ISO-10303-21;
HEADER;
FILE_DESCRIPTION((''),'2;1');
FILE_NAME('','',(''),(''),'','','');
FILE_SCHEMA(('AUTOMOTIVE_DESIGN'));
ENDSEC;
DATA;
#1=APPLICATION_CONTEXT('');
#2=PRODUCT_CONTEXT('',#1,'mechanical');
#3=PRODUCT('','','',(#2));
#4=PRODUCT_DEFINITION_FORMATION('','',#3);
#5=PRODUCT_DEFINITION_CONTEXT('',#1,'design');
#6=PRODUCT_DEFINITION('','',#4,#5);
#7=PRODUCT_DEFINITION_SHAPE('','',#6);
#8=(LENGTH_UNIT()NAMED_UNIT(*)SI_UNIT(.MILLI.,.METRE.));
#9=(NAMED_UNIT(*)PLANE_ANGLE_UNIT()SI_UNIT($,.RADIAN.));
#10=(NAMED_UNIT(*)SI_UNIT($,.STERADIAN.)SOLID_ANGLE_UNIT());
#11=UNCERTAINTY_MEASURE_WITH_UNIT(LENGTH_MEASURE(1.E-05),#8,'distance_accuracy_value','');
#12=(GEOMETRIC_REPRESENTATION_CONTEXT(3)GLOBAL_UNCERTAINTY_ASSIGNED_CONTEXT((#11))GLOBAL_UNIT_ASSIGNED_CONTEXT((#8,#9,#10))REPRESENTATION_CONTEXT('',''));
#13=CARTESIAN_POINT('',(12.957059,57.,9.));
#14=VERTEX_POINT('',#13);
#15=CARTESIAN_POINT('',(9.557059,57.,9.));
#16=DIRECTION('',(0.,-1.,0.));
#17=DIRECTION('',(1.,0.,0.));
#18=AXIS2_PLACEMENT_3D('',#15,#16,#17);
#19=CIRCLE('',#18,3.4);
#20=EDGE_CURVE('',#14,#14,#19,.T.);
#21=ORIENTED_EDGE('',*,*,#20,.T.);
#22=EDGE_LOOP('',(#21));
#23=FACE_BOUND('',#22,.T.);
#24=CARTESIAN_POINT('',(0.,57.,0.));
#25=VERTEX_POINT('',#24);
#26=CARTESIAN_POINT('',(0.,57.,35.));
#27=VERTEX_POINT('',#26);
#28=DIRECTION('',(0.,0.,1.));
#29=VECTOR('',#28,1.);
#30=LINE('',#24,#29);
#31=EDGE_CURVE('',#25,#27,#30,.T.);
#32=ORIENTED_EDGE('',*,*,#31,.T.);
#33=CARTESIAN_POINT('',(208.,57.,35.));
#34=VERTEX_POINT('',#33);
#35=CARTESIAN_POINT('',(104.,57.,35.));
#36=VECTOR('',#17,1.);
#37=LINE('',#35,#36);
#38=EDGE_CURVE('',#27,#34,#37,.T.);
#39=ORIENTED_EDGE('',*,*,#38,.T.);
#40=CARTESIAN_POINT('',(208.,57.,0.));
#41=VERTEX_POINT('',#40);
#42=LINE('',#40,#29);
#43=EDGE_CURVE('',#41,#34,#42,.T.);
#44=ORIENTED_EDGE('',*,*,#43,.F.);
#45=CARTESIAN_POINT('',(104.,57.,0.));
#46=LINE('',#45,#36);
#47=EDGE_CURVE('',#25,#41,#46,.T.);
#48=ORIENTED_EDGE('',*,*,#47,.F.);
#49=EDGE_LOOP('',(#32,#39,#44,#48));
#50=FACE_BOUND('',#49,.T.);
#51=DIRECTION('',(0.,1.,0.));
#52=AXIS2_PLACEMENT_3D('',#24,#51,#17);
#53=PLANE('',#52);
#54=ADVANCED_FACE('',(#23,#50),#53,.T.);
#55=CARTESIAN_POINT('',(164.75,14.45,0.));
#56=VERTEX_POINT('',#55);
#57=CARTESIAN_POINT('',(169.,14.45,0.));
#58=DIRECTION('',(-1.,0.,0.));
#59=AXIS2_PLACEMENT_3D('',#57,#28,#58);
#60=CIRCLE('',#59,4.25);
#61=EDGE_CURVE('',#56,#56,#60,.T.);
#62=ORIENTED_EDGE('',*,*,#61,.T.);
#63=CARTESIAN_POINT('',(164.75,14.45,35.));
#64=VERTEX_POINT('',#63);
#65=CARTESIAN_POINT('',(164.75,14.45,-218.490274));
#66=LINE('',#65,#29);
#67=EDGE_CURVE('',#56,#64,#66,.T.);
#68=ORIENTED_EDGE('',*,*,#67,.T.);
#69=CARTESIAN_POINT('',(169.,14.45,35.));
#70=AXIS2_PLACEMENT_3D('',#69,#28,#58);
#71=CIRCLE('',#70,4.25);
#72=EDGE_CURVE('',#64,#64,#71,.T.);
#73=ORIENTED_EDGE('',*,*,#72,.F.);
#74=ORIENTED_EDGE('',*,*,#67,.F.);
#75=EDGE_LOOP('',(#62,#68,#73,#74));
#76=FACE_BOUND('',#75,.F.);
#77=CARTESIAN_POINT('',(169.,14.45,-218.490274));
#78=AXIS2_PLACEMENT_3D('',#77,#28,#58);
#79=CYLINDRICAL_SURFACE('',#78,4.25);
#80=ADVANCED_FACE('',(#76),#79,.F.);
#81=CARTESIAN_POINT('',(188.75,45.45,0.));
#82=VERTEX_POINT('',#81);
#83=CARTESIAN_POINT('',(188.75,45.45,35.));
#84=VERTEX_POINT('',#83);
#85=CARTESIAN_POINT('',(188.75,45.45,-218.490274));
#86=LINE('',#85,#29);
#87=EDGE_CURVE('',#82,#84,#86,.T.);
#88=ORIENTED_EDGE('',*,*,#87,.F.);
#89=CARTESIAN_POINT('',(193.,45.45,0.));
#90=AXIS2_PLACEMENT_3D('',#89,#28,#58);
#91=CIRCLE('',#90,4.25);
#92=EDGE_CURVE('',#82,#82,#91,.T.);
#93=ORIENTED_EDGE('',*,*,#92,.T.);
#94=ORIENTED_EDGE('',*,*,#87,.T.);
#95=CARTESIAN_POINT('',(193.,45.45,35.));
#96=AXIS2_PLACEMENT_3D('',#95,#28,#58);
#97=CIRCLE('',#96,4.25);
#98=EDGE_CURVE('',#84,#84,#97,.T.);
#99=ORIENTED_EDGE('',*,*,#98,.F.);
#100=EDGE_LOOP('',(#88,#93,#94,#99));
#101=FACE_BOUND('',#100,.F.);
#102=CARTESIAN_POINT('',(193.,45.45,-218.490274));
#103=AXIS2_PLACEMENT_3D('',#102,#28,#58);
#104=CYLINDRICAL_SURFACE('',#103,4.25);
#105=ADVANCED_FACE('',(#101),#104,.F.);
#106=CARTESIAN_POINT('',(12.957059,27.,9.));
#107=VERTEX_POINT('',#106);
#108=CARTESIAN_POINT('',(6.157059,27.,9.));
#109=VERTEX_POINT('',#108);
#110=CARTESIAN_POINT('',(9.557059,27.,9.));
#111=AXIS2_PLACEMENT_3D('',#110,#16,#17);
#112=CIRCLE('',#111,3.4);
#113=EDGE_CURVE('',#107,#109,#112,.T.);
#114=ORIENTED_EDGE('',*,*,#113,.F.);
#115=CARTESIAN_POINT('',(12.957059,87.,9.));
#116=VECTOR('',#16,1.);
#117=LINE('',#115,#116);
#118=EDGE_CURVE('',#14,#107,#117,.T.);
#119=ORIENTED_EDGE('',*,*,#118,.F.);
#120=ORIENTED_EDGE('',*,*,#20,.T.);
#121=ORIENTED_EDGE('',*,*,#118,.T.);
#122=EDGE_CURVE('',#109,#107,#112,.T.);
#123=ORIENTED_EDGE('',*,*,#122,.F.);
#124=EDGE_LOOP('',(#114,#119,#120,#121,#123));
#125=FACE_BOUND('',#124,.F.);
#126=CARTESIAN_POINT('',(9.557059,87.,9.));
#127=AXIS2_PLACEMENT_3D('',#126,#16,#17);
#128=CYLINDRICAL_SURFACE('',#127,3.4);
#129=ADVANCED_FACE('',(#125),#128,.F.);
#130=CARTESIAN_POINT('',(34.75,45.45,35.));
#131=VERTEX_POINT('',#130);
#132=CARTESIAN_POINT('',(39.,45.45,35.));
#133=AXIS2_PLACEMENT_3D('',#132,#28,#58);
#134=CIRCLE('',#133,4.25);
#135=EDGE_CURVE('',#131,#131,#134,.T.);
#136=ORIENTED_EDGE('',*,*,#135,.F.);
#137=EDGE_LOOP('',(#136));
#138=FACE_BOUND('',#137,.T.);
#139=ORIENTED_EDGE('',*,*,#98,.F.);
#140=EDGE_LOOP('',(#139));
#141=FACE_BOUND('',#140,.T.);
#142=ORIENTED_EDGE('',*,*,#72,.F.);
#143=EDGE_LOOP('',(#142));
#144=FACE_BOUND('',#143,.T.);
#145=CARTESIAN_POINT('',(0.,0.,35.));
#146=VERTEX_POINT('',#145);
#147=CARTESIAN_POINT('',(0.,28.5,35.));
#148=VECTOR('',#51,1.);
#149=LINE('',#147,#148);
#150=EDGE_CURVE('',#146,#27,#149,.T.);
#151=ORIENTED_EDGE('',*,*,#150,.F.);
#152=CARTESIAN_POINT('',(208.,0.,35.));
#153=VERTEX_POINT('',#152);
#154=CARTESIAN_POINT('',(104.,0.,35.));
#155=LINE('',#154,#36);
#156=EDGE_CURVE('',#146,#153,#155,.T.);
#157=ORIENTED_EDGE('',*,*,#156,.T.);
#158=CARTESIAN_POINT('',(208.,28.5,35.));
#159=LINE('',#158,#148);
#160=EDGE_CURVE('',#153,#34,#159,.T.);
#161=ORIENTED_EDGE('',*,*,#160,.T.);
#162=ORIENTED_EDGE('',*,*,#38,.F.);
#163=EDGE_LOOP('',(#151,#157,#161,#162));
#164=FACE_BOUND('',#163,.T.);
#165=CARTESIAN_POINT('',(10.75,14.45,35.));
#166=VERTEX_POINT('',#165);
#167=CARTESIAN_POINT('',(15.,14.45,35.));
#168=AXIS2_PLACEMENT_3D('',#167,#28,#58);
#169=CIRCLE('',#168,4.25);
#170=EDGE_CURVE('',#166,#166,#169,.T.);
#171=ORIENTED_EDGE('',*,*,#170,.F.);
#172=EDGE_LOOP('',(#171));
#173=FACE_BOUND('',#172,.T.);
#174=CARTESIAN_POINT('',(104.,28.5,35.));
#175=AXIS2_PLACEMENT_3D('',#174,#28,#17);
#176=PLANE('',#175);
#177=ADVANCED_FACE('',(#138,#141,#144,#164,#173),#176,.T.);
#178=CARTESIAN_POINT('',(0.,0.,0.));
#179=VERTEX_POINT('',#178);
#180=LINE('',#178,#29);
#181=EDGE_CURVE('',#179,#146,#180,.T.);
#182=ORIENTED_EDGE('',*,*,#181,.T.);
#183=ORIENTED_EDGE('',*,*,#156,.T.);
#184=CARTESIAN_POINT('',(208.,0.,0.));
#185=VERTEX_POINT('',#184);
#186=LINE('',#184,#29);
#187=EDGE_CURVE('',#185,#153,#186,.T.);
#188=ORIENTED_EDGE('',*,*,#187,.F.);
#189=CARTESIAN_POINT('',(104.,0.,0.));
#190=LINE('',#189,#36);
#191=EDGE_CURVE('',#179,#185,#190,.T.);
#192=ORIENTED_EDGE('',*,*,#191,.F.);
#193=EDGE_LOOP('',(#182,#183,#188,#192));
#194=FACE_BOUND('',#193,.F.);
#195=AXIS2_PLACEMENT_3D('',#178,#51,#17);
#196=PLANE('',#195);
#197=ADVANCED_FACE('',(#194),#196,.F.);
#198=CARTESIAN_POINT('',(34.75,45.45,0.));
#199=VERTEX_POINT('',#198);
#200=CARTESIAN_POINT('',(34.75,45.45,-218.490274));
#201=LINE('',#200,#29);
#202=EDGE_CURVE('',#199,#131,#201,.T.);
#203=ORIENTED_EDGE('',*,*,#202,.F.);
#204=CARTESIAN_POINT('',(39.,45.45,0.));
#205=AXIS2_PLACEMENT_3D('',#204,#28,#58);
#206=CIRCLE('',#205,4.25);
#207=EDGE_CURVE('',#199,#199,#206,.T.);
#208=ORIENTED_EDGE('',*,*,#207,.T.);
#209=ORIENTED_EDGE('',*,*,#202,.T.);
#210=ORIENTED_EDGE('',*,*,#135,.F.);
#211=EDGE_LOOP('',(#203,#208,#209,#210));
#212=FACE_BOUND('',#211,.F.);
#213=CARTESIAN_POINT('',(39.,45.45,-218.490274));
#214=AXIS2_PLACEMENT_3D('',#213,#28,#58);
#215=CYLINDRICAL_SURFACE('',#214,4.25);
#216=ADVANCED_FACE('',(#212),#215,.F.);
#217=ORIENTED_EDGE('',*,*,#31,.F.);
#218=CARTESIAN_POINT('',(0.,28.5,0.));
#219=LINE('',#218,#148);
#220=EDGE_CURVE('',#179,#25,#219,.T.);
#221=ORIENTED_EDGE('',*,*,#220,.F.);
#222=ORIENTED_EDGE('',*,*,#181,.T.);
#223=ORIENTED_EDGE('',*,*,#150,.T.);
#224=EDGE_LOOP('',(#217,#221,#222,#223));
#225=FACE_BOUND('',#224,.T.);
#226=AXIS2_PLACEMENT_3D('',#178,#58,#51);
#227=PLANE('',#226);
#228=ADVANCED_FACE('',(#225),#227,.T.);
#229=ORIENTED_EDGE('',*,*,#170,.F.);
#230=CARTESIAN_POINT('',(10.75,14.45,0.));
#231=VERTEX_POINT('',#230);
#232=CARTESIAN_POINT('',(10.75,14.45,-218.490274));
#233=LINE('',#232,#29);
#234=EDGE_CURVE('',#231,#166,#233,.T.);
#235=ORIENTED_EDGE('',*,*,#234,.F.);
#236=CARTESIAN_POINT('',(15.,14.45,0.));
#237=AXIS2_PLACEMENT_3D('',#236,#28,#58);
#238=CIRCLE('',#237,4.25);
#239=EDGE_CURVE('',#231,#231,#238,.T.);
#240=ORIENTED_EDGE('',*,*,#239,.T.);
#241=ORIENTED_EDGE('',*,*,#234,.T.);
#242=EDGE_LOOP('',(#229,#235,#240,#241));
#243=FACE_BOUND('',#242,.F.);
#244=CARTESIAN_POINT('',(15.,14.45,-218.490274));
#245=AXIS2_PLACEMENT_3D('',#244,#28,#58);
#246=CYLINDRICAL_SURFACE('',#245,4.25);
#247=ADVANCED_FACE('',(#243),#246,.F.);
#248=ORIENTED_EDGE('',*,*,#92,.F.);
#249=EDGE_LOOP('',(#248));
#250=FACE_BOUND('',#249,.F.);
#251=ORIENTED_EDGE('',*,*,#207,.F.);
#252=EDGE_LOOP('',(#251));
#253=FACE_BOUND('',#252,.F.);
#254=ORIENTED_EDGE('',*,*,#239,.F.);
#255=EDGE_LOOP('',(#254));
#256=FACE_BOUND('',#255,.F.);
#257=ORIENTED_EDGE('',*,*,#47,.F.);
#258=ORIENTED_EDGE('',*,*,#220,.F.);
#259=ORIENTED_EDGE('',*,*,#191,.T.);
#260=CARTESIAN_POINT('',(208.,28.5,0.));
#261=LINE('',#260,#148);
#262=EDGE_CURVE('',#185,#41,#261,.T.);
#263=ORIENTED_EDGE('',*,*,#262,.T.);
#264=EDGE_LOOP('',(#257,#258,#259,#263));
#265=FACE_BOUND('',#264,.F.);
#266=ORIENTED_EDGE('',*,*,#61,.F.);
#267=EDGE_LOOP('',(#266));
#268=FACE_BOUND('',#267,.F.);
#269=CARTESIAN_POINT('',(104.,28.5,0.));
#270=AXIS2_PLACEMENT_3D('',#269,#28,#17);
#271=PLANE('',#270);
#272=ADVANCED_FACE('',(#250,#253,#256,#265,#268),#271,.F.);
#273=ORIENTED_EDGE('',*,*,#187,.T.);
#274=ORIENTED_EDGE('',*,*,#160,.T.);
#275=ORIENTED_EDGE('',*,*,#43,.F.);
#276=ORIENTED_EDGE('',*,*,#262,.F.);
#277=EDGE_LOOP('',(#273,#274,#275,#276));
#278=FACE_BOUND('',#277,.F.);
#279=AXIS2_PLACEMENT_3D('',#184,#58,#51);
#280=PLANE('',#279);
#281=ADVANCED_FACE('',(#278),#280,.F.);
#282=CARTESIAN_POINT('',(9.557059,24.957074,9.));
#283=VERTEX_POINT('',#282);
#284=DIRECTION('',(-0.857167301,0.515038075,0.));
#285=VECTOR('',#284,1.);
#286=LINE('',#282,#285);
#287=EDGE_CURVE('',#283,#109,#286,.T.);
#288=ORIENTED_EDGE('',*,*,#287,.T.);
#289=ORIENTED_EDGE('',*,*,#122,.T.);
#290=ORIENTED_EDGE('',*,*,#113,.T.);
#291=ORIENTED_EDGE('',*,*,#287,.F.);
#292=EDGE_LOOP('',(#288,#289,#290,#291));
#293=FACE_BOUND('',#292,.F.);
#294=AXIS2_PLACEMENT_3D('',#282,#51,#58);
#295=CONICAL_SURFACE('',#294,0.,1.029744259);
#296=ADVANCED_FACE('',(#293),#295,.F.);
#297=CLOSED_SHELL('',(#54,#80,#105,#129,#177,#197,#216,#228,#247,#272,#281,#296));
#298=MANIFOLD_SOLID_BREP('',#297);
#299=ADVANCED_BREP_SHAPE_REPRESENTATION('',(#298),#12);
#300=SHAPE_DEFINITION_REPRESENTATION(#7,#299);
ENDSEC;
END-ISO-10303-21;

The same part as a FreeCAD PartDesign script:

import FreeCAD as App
import Part
import Sketcher

V = App.Vector

doc = App.newDocument("Part")
body = doc.addObject("PartDesign::Body", "Body")

sketch1 = doc.addObject("Sketcher::SketchObject", "Sketch")
body.addObject(sketch1)
sketch1.AttachmentSupport = (doc.XY_Plane, [""])
sketch1.MapMode = "FlatFace"
sketch1.addGeometry([
    Part.LineSegment(V(0, 57, 0), V(0, 0, 0)),
    Part.LineSegment(V(0, 0, 0), V(208, 0, 0)),
    Part.LineSegment(V(208, 0, 0), V(208, 57, 0)),
    Part.LineSegment(V(208, 57, 0), V(0, 57, 0)),
], False)
sketch1.addConstraint([
    Sketcher.Constraint("Coincident", 0, 2, 1, 1),
    Sketcher.Constraint("Coincident", 1, 2, 2, 1),
    Sketcher.Constraint("Coincident", 2, 2, 3, 1),
    Sketcher.Constraint("Coincident", 3, 2, 0, 1),
    Sketcher.Constraint("Vertical", 0),
    Sketcher.Constraint("Horizontal", 1),
    Sketcher.Constraint("Vertical", 2),
    Sketcher.Constraint("Horizontal", 3),
    Sketcher.Constraint("Coincident", 0, 2, -1, 1),
    Sketcher.Constraint("DistanceX", 1, 1, 1, 2, 208.0),
    Sketcher.Constraint("DistanceY", 0, 2, 0, 1, 57.0),
])
pad1 = doc.addObject("PartDesign::Pad", "Pad")
body.addObject(pad1)
pad1.Profile = sketch1
pad1.Length = 35

sketch2 = doc.addObject("Sketcher::SketchObject", "Sketch001")
body.addObject(sketch2)
sketch2.AttachmentSupport = (doc.XZ_Plane, [""])
sketch2.MapMode = "FlatFace"
sketch2.AttachmentOffset = App.Placement(V(0, 0, -57), App.Rotation())
sketch2.addGeometry(Part.Circle(V(9.6, 9, 0), V(0, 0, 1), 3.4), False)
sketch2.addConstraint([
    Sketcher.Constraint("Diameter", 0, 6.8),
    Sketcher.Constraint("DistanceY", -1, 1, 0, 3, 9.0),
    Sketcher.Constraint("DistanceX", -1, 1, 0, 3, 9.557059),
])
doc.recompute()
hole = doc.addObject("PartDesign::Hole", "Hole")
body.addObject(hole)
hole.Profile = sketch2
hole.ThreadType = "None"
hole.Diameter = 6.8
hole.DepthType = "Dimension"
hole.Depth = 30
hole.DrillPoint = "Angled"
hole.DrillPointAngle = 118
hole.Reversed = True

sketch3 = doc.addObject("Sketcher::SketchObject", "Sketch002")
body.addObject(sketch3)
sketch3.AttachmentSupport = (doc.XY_Plane, [""])
sketch3.MapMode = "FlatFace"
sketch3.addGeometry([
    Part.Circle(V(193, 45.5, 0), V(0, 0, 1), 4.2),
    Part.Circle(V(169, 14.4, 0), V(0, 0, 1), 4.2),
    Part.Circle(V(39, 45.5, 0), V(0, 0, 1), 4.2),
    Part.Circle(V(15, 14.4, 0), V(0, 0, 1), 4.2),
], False)
sketch3.addConstraint([
    Sketcher.Constraint("Equal", 0, 1),
    Sketcher.Constraint("Equal", 1, 2),
    Sketcher.Constraint("Equal", 2, 3),
    Sketcher.Constraint("Horizontal", 0, 3, 2, 3),
    Sketcher.Constraint("Horizontal", 1, 3, 3, 3),
    Sketcher.Constraint("Diameter", 0, 8.5),
    Sketcher.Constraint("DistanceX", -1, 1, 0, 3, 193.0),
    Sketcher.Constraint("DistanceX", -1, 1, 1, 3, 169.0),
    Sketcher.Constraint("DistanceX", -1, 1, 2, 3, 39.0),
    Sketcher.Constraint("DistanceX", -1, 1, 3, 3, 15.0),
    Sketcher.Constraint("DistanceY", 1, 3, 0, 3, 31.0),
    Sketcher.Constraint("DistanceY", -1, 1, 0, 3, 45.45),
])
doc.recompute()
hole2 = doc.addObject("PartDesign::Hole", "Hole001")
body.addObject(hole2)
hole2.Profile = sketch3
hole2.ThreadType = "None"
hole2.Diameter = 8.5
hole2.DepthType = "ThroughAll"
hole2.Reversed = True

doc.recompute()
